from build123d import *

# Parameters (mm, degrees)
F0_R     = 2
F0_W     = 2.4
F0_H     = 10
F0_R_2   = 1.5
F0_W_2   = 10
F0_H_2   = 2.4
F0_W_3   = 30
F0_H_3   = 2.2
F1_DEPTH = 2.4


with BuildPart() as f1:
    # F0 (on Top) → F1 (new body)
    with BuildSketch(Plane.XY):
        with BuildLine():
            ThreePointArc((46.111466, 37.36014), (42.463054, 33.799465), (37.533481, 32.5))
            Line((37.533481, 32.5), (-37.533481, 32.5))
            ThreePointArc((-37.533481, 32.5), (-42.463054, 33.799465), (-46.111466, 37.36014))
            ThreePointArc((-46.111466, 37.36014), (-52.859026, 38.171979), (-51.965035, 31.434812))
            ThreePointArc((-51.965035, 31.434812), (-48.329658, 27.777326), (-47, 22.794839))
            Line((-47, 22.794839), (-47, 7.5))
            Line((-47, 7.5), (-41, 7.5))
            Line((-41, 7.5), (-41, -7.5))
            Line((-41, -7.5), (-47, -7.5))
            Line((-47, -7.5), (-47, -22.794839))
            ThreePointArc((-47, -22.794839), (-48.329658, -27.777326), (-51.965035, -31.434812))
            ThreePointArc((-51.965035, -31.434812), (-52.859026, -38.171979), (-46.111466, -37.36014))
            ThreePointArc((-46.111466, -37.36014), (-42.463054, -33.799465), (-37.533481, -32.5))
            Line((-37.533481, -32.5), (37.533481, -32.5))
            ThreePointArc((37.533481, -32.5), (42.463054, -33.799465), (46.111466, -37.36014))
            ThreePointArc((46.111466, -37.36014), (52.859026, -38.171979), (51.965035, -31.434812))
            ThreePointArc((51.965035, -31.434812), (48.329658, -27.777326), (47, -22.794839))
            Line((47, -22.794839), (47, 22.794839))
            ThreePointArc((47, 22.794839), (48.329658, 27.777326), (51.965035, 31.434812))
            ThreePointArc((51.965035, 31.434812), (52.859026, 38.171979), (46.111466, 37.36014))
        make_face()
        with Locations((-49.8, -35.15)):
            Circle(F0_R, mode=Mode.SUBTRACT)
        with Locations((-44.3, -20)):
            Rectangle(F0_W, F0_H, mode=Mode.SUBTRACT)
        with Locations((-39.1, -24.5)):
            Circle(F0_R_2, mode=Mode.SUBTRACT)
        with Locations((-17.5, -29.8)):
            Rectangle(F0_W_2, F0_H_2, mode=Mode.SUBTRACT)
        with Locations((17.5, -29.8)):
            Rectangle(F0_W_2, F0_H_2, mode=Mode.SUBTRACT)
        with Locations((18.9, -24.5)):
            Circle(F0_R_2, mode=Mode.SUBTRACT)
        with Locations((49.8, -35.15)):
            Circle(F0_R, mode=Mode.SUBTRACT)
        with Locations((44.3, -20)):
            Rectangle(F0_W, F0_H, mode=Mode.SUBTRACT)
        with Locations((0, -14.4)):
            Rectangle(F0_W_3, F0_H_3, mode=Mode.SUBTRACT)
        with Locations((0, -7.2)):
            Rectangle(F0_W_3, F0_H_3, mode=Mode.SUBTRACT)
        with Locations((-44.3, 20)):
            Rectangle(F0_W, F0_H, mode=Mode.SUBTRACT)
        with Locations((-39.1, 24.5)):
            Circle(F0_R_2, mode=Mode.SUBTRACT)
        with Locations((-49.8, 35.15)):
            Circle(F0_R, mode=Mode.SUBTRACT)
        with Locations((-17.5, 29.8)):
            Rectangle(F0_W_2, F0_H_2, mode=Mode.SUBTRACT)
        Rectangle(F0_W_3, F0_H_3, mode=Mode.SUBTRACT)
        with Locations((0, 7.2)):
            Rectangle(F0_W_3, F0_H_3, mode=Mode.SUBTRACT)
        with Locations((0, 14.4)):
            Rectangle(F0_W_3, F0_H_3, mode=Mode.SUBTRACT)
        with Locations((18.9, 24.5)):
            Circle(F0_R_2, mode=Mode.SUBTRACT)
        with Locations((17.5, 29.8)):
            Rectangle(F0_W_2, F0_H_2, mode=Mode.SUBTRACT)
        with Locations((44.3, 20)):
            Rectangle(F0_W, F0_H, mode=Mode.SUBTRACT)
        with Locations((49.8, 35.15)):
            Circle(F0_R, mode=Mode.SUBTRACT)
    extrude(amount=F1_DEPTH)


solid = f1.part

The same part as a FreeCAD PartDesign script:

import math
import FreeCAD as App
import Part
import Sketcher
from FreeCAD import Vector


def add_polygon(sketch, points):
    """Adds a closed chain of lines whose ends are joined by coincident constraints."""
    first, n = sketch.GeometryCount, len(points)
    for a, b in zip(points, points[1:] + points[:1]):
        sketch.addGeometry(Part.LineSegment(App.Vector(*a, 0), App.Vector(*b, 0)), False)
    for i in range(n):
        sketch.addConstraint(Sketcher.Constraint("Coincident", first + i, 2, first + (i + 1) % n, 1))

doc = App.newDocument("Part")
params = doc.addObject("Spreadsheet::Sheet", "Params")
for row, (alias, value) in enumerate([
    ("sketch1_diameter", "4 mm"),
    ("sketch1_diameter2", "3 mm"),
    ("sketch1_radius", "9.999999 mm"),
    ("sketch1_radius2", "4.3 mm"),
    ("sketch1_width", "6 mm"),
    ("pad1_length", "2.4 mm"),
], start=1):
    params.set(f"A{row}", alias)
    params.set(f"B{row}", "=" + value)
    params.setAlias(f"B{row}", alias)

body = doc.addObject("PartDesign::Body", "Body")

sketch1 = doc.addObject("Sketcher::SketchObject", "Sketch")
body.addObject(sketch1)
sketch1.AttachmentSupport = (doc.XY_Plane, [""])
sketch1.MapMode = "FlatFace"
sketch1.addGeometry(Part.ArcOfCircle(Part.Circle(Vector(37.533481, 42.499998, 0), Vector(0, 0, 1), 9.999998), math.radians(-90.000003), math.radians(-30.929695)), False)
sketch1.addGeometry(Part.LineSegment(Vector(37.533481, 32.5, 0), Vector(-37.533481, 32.5, 0)), False)
sketch1.addGeometry(Part.ArcOfCircle(Part.Circle(Vector(-37.533481, 42.499998, 0), Vector(0, 0, 1), 9.999998), math.radians(-149.070305), math.radians(-89.999997)), False)
sketch1.addGeometry(Part.ArcOfCircle(Part.Circle(Vector(-49.8, 35.15, 0), Vector(0, 0, 1), 4.3), math.radians(30.929706), math.radians(239.768396)), False)
sketch1.addGeometry(Part.ArcOfCircle(Part.Circle(Vector(-56.999999, 22.79484, 0), Vector(0, 0, 1), 9.999999), math.radians(-0.000006), math.radians(59.768406)), False)
sketch1.addGeometry(Part.LineSegment(Vector(-47, 22.794839, 0), Vector(-47, 7.5, 0)), False)
sketch1.addGeometry(Part.LineSegment(Vector(-47, 7.5, 0), Vector(-41, 7.5, 0)), False)
sketch1.addGeometry(Part.LineSegment(Vector(-41, 7.5, 0), Vector(-41, -7.5, 0)), False)
sketch1.addGeometry(Part.LineSegment(Vector(-41, -7.5, 0), Vector(-47, -7.5, 0)), False)
sketch1.addGeometry(Part.LineSegment(Vector(-47, -7.5, 0), Vector(-47, -22.794839, 0)), False)
sketch1.addGeometry(Part.ArcOfCircle(Part.Circle(Vector(-56.999999, -22.79484, 0), Vector(0, 0, 1), 9.999999), math.radians(-59.768406), math.radians(0.000006)), False)
sketch1.addGeometry(Part.ArcOfCircle(Part.Circle(Vector(-49.8, -35.15, 0), Vector(0, 0, 1), 4.3), math.radians(120.231604), math.radians(329.070294)), False)
sketch1.addGeometry(Part.ArcOfCircle(Part.Circle(Vector(-37.533481, -42.499998, 0), Vector(0, 0, 1), 9.999998), math.radians(89.999997), math.radians(149.070305)), False)
sketch1.addGeometry(Part.LineSegment(Vector(-37.533481, -32.5, 0), Vector(37.533481, -32.5, 0)), False)
sketch1.addGeometry(Part.ArcOfCircle(Part.Circle(Vector(37.533481, -42.499998, 0), Vector(0, 0, 1), 9.999998), math.radians(30.929695), math.radians(90.000003)), False)
sketch1.addGeometry(Part.ArcOfCircle(Part.Circle(Vector(49.8, -35.15, 0), Vector(0, 0, 1), 4.3), math.radians(-149.070294), math.radians(59.768396)), False)
sketch1.addGeometry(Part.ArcOfCircle(Part.Circle(Vector(56.999999, -22.79484, 0), Vector(0, 0, 1), 9.999999), math.radians(179.999994), math.radians(239.768406)), False)
sketch1.addGeometry(Part.LineSegment(Vector(47, -22.794839, 0), Vector(47, 22.794839, 0)), False)
sketch1.addGeometry(Part.ArcOfCircle(Part.Circle(Vector(56.999999, 22.79484, 0), Vector(0, 0, 1), 9.999999), math.radians(120.231594), math.radians(180.000006)), False)
sketch1.addGeometry(Part.ArcOfCircle(Part.Circle(Vector(49.8, 35.15, 0), Vector(0, 0, 1), 4.3), math.radians(-59.768396), math.radians(149.070294)), False)
sketch1.addGeometry(Part.Circle(Vector(-49.8, -35.15, 0), Vector(0, 0, 1), 2), False)
sketch1.addGeometry(Part.Circle(Vector(-39.1, -24.5, 0), Vector(0, 0, 1), 1.5), False)
add_polygon(sketch1, [(-43.1, -25), (-45.5, -25), (-45.5, -15), (-43.1, -15)])
add_polygon(sketch1, [(-12.5, -31), (-22.5, -31), (-22.5, -28.6), (-12.5, -28.6)])
add_polygon(sketch1, [(15, -15.5), (-15, -15.5), (-15, -13.3), (15, -13.3)])
add_polygon(sketch1, [(15, -8.3), (-15, -8.3), (-15, -6.1), (15, -6.1)])
add_polygon(sketch1, [(22.5, -31), (12.5, -31), (12.5, -28.6), (22.5, -28.6)])
sketch1.addGeometry(Part.Circle(Vector(18.9, -24.5, 0), Vector(0, 0, 1), 1.5), False)
sketch1.addGeometry(Part.Circle(Vector(49.8, -35.15, 0), Vector(0, 0, 1), 2), False)
add_polygon(sketch1, [(45.5, -25), (43.1, -25), (43.1, -15), (45.5, -15)])
add_polygon(sketch1, [(15, -1.1), (-15, -1.1), (-15, 1.1), (15, 1.1)])
add_polygon(sketch1, [(15, 6.1), (-15, 6.1), (-15, 8.3), (15, 8.3)])
add_polygon(sketch1, [(15, 13.3), (-15, 13.3), (-15, 15.5), (15, 15.5)])
add_polygon(sketch1, [(-43.1, 15), (-45.5, 15), (-45.5, 25), (-43.1, 25)])
sketch1.addGeometry(Part.Circle(Vector(-39.1, 24.5, 0), Vector(0, 0, 1), 1.5), False)
sketch1.addGeometry(Part.Circle(Vector(-49.8, 35.15, 0), Vector(0, 0, 1), 2), False)
add_polygon(sketch1, [(-12.5, 28.6), (-22.5, 28.6), (-22.5, 31), (-12.5, 31)])
sketch1.addGeometry(Part.Circle(Vector(18.9, 24.5, 0), Vector(0, 0, 1), 1.5), False)
add_polygon(sketch1, [(22.5, 28.6), (12.5, 28.6), (12.5, 31), (22.5, 31)])
add_polygon(sketch1, [(45.5, 15), (43.1, 15), (43.1, 25), (45.5, 25)])
sketch1.addGeometry(Part.Circle(Vector(49.8, 35.15, 0), Vector(0, 0, 1), 2), False)
sketch1.addConstraint([
    Sketcher.Constraint("Tangent", 0, 1, 1, 1),
    Sketcher.Constraint("Tangent", 1, 2, 2, 2),
    Sketcher.Constraint("Tangent", 2, 1, 3, 1),
    Sketcher.Constraint("Tangent", 3, 2, 4, 2),
    Sketcher.Constraint("Tangent", 4, 1, 5, 1),
    Sketcher.Constraint("Coincident", 5, 2, 6, 1),
    Sketcher.Constraint("Coincident", 6, 2, 7, 1),
    Sketcher.Constraint("Coincident", 7, 2, 8, 1),
    Sketcher.Constraint("Coincident", 8, 2, 9, 1),
    Sketcher.Constraint("Tangent", 9, 2, 10, 2),
    Sketcher.Constraint("Tangent", 10, 1, 11, 1),
    Sketcher.Constraint("Tangent", 11, 2, 12, 2),
    Sketcher.Constraint("Tangent", 12, 1, 13, 1),
    Sketcher.Constraint("Tangent", 13, 2, 14, 2),
    Sketcher.Constraint("Tangent", 14, 1, 15, 1),
    Sketcher.Constraint("Tangent", 15, 2, 16, 2),
    Sketcher.Constraint("Tangent", 16, 1, 17, 1),
    Sketcher.Constraint("Tangent", 17, 2, 18, 2),
    Sketcher.Constraint("Tangent", 18, 1, 19, 1),
    Sketcher.Constraint("Tangent", 19, 2, 0, 2),
    Sketcher.Constraint("Horizontal", 1),
    Sketcher.Constraint("Vertical", 5),
    Sketcher.Constraint("Horizontal", 6),
    Sketcher.Constraint("Vertical", 7),
    Sketcher.Constraint("Horizontal", 8),
    Sketcher.Constraint("Vertical", 9),
    Sketcher.Constraint("Horizontal", 13),
    Sketcher.Constraint("Vertical", 17),
    Sketcher.Constraint("Horizontal", 22),
    Sketcher.Constraint("Vertical", 23),
    Sketcher.Constraint("Horizontal", 24),
    Sketcher.Constraint("Vertical", 25),
    Sketcher.Constraint("Horizontal", 26),
    Sketcher.Constraint("Vertical", 27),
    Sketcher.Constraint("Horizontal", 28),
    Sketcher.Constraint("Vertical", 29),
    Sketcher.Constraint("Horizontal", 30),
    Sketcher.Constraint("Vertical", 31),
    Sketcher.Constraint("Horizontal", 32),
    Sketcher.Constraint("Vertical", 33),
    Sketcher.Constraint("Horizontal", 34),
    Sketcher.Constraint("Vertical", 35),
    Sketcher.Constraint("Horizontal", 36),
    Sketcher.Constraint("Vertical", 37),
    Sketcher.Constraint("Horizontal", 38),
    Sketcher.Constraint("Vertical", 39),
    Sketcher.Constraint("Horizontal", 40),
    Sketcher.Constraint("Vertical", 41),
    Sketcher.Constraint("Horizontal", 44),
    Sketcher.Constraint("Vertical", 45),
    Sketcher.Constraint("Horizontal", 46),
    Sketcher.Constraint("Vertical", 47),
    Sketcher.Constraint("Horizontal", 48),
    Sketcher.Constraint("Vertical", 49),
    Sketcher.Constraint("Horizontal", 50),
    Sketcher.Constraint("Vertical", 51),
    Sketcher.Constraint("Horizontal", 52),
    Sketcher.Constraint("Vertical", 53),
    Sketcher.Constraint("Horizontal", 54),
    Sketcher.Constraint("Vertical", 55),
    Sketcher.Constraint("Horizontal", 56),
    Sketcher.Constraint("Vertical", 57),
    Sketcher.Constraint("Horizontal", 58),
    Sketcher.Constraint("Vertical", 59),
    Sketcher.Constraint("Horizontal", 60),
    Sketcher.Constraint("Vertical", 61),
    Sketcher.Constraint("Horizontal", 62),
    Sketcher.Constraint("Vertical", 63),
    Sketcher.Constraint("Horizontal", 66),
    Sketcher.Constraint("Vertical", 67),
    Sketcher.Constraint("Horizontal", 68),
    Sketcher.Constraint("Vertical", 69),
    Sketcher.Constraint("Horizontal", 71),
    Sketcher.Constraint("Vertical", 72),
    Sketcher.Constraint("Horizontal", 73),
    Sketcher.Constraint("Vertical", 74),
    Sketcher.Constraint("Horizontal", 75),
    Sketcher.Constraint("Vertical", 76),
    Sketcher.Constraint("Horizontal", 77),
    Sketcher.Constraint("Vertical", 78),
    Sketcher.Constraint("Coincident", 20, 3, 11, 3),
    Sketcher.Constraint("Coincident", 43, 3, 15, 3),
    Sketcher.Constraint("Coincident", 65, 3, 3, 3),
    Sketcher.Constraint("Coincident", 79, 3, 19, 3),
    Sketcher.Constraint("Equal", 0, 2),
    Sketcher.Constraint("Equal", 2, 4),
    Sketcher.Constraint("Equal", 4, 10),
    Sketcher.Constraint("Equal", 3, 11),
    Sketcher.Constraint("Equal", 10, 12),
    Sketcher.Constraint("Equal", 12, 14),
    Sketcher.Constraint("Equal", 11, 15),
    Sketcher.Constraint("Equal", 14, 16),
    Sketcher.Constraint("Equal", 16, 18),
    Sketcher.Constraint("Equal", 15, 19),
    Sketcher.Constraint("Equal", 21, 42),
    Sketcher.Constraint("Equal", 20, 43),
    Sketcher.Constraint("Equal", 42, 64),
    Sketcher.Constraint("Equal", 43, 65),
    Sketcher.Constraint("Equal", 64, 70),
    Sketcher.Constraint("Equal", 65, 79),
    Sketcher.Constraint("Symmetric", 0, 3, 12, 3, -1, 1),
    Sketcher.Constraint("Symmetric", 3, 3, 15, 3, -1, 1),
    Sketcher.Constraint("Symmetric", 10, 3, 18, 3, -1, 1),
    Sketcher.Constraint("Symmetric", 48, 2, 50, 2, -1, 1),
    Sketcher.Constraint("Symmetric", 36, 2, 52, 2, -1, 1),
    Sketcher.Constraint("Symmetric", 34, 2, 54, 2, -1, 1),
    Sketcher.Constraint("Symmetric", 32, 2, 56, 2, -1, 1),
    Sketcher.Constraint("Symmetric", 30, 2, 58, 2, -1, 1),
    Sketcher.Constraint("Symmetric", 46, 2, 60, 2, -1, 1),
    Sketcher.Constraint("Symmetric", 44, 2, 62, 2, -1, 1),
    Sketcher.Constraint("Symmetric", 40, 2, 66, 2, -1, 1),
    Sketcher.Constraint("Symmetric", 38, 2, 68, 2, -1, 1),
    Sketcher.Constraint("Symmetric", 28, 2, 71, 2, -1, 1),
    Sketcher.Constraint("Symmetric", 26, 2, 73, 2, -1, 1),
    Sketcher.Constraint("Symmetric", 24, 2, 75, 2, -1, 1),
    Sketcher.Constraint("Symmetric", 22, 2, 77, 2, -1, 1),
    Sketcher.Constraint("Symmetric", 11, 3, 15, 3, -2),
    Sketcher.Constraint("Symmetric", 29, 2, 38, 2, -2),
    Sketcher.Constraint("Symmetric", 27, 2, 40, 2, -2),
    Sketcher.Constraint("Symmetric", 25, 2, 44, 2, -2),
    Sketcher.Constraint("Symmetric", 23, 2, 46, 2, -2),
    Sketcher.Constraint("Symmetric", 21, 3, 64, 3, -1),
    Sketcher.Constraint("Symmetric", 42, 3, 70, 3, -1),
    Sketcher.Constraint("Symmetric", 5, 2, 8, 2, -1),
    Sketcher.Constraint("Horizontal", 21, 3, 42, 3),
    Sketcher.Constraint("Vertical", 31, 2, 34, 2),
    Sketcher.Constraint("Vertical", 33, 2, 36, 2),
    Sketcher.Constraint("Vertical", 35, 2, 48, 2),
    Sketcher.Constraint("Vertical", 37, 2, 50, 2),
    Sketcher.Constraint("Equal", 73, 23),
    Sketcher.Constraint("Equal", 77, 27),
    Sketcher.Constraint("Equal", 33, 35),
    Sketcher.Constraint("Equal", 37, 49),
    Sketcher.Constraint("Diameter", 20, 4.0),
    Sketcher.Constraint("Diameter", 21, 3.0),
    Sketcher.Constraint("Radius", 4, 9.999999),
    Sketcher.Constraint("Radius", 3, 4.3),
    Sketcher.Constraint("DistanceX", 6, 1, 6, 2, 6.0),
    Sketcher.Constraint("DistanceX", 26, 2, 26, 1, 10.0),
    Sketcher.Constraint("DistanceX", 30, 2, 30, 1, 30.0),
    Sketcher.Constraint("DistanceY", 7, 2, 7, 1, 15.0),
    Sketcher.Constraint("DistanceX", 22, 2, 22, 1, 2.4),
    Sketcher.Constraint("DistanceY", 31, 1, 31, 2, 2.2),
    Sketcher.Constraint("DistanceX", 4, 3, -1, 1, 56.999999),
    Sketcher.Constraint("DistanceY", 22, 2, -1, 1, 25.0),
    Sketcher.Constraint("DistanceY", 26, 2, -1, 1, 31.0),
    Sketcher.Constraint("DistanceX", 3, 3, -1, 1, 49.8),
    Sketcher.Constraint("DistanceX", 21, 3, -1, 1, 39.1),
    Sketcher.Constraint("DistanceY", 21, 3, -1, 1, 24.5),
    Sketcher.Constraint("DistanceX", -1, 1, 42, 3, 18.9),
    Sketcher.Constraint("DistanceY", -1, 1, 0, 1, 32.5),
    Sketcher.Constraint("DistanceX", 22, 2, -1, 1, 45.5),
    Sketcher.Constraint("DistanceX", 26, 2, -1, 1, 22.5),
    Sketcher.Constraint("DistanceY", 30, 2, -1, 1, 15.5),
    Sketcher.Constraint("DistanceY", 34, 2, -1, 1, 8.3),
    Sketcher.Constraint("DistanceY", -1, 1, 3, 3, 35.15),
])
sketch1.setExpression("Constraints[185]", "Params.sketch1_diameter")
sketch1.setExpression("Constraints[186]", "Params.sketch1_diameter2")
sketch1.setExpression("Constraints[187]", "Params.sketch1_radius")
sketch1.setExpression("Constraints[188]", "Params.sketch1_radius2")
sketch1.setExpression("Constraints[189]", "Params.sketch1_width")
pad1 = doc.addObject("PartDesign::Pad", "Pad")
body.addObject(pad1)
pad1.Profile = sketch1
pad1.setExpression("Length", "Params.pad1_length")

doc.recompute()
